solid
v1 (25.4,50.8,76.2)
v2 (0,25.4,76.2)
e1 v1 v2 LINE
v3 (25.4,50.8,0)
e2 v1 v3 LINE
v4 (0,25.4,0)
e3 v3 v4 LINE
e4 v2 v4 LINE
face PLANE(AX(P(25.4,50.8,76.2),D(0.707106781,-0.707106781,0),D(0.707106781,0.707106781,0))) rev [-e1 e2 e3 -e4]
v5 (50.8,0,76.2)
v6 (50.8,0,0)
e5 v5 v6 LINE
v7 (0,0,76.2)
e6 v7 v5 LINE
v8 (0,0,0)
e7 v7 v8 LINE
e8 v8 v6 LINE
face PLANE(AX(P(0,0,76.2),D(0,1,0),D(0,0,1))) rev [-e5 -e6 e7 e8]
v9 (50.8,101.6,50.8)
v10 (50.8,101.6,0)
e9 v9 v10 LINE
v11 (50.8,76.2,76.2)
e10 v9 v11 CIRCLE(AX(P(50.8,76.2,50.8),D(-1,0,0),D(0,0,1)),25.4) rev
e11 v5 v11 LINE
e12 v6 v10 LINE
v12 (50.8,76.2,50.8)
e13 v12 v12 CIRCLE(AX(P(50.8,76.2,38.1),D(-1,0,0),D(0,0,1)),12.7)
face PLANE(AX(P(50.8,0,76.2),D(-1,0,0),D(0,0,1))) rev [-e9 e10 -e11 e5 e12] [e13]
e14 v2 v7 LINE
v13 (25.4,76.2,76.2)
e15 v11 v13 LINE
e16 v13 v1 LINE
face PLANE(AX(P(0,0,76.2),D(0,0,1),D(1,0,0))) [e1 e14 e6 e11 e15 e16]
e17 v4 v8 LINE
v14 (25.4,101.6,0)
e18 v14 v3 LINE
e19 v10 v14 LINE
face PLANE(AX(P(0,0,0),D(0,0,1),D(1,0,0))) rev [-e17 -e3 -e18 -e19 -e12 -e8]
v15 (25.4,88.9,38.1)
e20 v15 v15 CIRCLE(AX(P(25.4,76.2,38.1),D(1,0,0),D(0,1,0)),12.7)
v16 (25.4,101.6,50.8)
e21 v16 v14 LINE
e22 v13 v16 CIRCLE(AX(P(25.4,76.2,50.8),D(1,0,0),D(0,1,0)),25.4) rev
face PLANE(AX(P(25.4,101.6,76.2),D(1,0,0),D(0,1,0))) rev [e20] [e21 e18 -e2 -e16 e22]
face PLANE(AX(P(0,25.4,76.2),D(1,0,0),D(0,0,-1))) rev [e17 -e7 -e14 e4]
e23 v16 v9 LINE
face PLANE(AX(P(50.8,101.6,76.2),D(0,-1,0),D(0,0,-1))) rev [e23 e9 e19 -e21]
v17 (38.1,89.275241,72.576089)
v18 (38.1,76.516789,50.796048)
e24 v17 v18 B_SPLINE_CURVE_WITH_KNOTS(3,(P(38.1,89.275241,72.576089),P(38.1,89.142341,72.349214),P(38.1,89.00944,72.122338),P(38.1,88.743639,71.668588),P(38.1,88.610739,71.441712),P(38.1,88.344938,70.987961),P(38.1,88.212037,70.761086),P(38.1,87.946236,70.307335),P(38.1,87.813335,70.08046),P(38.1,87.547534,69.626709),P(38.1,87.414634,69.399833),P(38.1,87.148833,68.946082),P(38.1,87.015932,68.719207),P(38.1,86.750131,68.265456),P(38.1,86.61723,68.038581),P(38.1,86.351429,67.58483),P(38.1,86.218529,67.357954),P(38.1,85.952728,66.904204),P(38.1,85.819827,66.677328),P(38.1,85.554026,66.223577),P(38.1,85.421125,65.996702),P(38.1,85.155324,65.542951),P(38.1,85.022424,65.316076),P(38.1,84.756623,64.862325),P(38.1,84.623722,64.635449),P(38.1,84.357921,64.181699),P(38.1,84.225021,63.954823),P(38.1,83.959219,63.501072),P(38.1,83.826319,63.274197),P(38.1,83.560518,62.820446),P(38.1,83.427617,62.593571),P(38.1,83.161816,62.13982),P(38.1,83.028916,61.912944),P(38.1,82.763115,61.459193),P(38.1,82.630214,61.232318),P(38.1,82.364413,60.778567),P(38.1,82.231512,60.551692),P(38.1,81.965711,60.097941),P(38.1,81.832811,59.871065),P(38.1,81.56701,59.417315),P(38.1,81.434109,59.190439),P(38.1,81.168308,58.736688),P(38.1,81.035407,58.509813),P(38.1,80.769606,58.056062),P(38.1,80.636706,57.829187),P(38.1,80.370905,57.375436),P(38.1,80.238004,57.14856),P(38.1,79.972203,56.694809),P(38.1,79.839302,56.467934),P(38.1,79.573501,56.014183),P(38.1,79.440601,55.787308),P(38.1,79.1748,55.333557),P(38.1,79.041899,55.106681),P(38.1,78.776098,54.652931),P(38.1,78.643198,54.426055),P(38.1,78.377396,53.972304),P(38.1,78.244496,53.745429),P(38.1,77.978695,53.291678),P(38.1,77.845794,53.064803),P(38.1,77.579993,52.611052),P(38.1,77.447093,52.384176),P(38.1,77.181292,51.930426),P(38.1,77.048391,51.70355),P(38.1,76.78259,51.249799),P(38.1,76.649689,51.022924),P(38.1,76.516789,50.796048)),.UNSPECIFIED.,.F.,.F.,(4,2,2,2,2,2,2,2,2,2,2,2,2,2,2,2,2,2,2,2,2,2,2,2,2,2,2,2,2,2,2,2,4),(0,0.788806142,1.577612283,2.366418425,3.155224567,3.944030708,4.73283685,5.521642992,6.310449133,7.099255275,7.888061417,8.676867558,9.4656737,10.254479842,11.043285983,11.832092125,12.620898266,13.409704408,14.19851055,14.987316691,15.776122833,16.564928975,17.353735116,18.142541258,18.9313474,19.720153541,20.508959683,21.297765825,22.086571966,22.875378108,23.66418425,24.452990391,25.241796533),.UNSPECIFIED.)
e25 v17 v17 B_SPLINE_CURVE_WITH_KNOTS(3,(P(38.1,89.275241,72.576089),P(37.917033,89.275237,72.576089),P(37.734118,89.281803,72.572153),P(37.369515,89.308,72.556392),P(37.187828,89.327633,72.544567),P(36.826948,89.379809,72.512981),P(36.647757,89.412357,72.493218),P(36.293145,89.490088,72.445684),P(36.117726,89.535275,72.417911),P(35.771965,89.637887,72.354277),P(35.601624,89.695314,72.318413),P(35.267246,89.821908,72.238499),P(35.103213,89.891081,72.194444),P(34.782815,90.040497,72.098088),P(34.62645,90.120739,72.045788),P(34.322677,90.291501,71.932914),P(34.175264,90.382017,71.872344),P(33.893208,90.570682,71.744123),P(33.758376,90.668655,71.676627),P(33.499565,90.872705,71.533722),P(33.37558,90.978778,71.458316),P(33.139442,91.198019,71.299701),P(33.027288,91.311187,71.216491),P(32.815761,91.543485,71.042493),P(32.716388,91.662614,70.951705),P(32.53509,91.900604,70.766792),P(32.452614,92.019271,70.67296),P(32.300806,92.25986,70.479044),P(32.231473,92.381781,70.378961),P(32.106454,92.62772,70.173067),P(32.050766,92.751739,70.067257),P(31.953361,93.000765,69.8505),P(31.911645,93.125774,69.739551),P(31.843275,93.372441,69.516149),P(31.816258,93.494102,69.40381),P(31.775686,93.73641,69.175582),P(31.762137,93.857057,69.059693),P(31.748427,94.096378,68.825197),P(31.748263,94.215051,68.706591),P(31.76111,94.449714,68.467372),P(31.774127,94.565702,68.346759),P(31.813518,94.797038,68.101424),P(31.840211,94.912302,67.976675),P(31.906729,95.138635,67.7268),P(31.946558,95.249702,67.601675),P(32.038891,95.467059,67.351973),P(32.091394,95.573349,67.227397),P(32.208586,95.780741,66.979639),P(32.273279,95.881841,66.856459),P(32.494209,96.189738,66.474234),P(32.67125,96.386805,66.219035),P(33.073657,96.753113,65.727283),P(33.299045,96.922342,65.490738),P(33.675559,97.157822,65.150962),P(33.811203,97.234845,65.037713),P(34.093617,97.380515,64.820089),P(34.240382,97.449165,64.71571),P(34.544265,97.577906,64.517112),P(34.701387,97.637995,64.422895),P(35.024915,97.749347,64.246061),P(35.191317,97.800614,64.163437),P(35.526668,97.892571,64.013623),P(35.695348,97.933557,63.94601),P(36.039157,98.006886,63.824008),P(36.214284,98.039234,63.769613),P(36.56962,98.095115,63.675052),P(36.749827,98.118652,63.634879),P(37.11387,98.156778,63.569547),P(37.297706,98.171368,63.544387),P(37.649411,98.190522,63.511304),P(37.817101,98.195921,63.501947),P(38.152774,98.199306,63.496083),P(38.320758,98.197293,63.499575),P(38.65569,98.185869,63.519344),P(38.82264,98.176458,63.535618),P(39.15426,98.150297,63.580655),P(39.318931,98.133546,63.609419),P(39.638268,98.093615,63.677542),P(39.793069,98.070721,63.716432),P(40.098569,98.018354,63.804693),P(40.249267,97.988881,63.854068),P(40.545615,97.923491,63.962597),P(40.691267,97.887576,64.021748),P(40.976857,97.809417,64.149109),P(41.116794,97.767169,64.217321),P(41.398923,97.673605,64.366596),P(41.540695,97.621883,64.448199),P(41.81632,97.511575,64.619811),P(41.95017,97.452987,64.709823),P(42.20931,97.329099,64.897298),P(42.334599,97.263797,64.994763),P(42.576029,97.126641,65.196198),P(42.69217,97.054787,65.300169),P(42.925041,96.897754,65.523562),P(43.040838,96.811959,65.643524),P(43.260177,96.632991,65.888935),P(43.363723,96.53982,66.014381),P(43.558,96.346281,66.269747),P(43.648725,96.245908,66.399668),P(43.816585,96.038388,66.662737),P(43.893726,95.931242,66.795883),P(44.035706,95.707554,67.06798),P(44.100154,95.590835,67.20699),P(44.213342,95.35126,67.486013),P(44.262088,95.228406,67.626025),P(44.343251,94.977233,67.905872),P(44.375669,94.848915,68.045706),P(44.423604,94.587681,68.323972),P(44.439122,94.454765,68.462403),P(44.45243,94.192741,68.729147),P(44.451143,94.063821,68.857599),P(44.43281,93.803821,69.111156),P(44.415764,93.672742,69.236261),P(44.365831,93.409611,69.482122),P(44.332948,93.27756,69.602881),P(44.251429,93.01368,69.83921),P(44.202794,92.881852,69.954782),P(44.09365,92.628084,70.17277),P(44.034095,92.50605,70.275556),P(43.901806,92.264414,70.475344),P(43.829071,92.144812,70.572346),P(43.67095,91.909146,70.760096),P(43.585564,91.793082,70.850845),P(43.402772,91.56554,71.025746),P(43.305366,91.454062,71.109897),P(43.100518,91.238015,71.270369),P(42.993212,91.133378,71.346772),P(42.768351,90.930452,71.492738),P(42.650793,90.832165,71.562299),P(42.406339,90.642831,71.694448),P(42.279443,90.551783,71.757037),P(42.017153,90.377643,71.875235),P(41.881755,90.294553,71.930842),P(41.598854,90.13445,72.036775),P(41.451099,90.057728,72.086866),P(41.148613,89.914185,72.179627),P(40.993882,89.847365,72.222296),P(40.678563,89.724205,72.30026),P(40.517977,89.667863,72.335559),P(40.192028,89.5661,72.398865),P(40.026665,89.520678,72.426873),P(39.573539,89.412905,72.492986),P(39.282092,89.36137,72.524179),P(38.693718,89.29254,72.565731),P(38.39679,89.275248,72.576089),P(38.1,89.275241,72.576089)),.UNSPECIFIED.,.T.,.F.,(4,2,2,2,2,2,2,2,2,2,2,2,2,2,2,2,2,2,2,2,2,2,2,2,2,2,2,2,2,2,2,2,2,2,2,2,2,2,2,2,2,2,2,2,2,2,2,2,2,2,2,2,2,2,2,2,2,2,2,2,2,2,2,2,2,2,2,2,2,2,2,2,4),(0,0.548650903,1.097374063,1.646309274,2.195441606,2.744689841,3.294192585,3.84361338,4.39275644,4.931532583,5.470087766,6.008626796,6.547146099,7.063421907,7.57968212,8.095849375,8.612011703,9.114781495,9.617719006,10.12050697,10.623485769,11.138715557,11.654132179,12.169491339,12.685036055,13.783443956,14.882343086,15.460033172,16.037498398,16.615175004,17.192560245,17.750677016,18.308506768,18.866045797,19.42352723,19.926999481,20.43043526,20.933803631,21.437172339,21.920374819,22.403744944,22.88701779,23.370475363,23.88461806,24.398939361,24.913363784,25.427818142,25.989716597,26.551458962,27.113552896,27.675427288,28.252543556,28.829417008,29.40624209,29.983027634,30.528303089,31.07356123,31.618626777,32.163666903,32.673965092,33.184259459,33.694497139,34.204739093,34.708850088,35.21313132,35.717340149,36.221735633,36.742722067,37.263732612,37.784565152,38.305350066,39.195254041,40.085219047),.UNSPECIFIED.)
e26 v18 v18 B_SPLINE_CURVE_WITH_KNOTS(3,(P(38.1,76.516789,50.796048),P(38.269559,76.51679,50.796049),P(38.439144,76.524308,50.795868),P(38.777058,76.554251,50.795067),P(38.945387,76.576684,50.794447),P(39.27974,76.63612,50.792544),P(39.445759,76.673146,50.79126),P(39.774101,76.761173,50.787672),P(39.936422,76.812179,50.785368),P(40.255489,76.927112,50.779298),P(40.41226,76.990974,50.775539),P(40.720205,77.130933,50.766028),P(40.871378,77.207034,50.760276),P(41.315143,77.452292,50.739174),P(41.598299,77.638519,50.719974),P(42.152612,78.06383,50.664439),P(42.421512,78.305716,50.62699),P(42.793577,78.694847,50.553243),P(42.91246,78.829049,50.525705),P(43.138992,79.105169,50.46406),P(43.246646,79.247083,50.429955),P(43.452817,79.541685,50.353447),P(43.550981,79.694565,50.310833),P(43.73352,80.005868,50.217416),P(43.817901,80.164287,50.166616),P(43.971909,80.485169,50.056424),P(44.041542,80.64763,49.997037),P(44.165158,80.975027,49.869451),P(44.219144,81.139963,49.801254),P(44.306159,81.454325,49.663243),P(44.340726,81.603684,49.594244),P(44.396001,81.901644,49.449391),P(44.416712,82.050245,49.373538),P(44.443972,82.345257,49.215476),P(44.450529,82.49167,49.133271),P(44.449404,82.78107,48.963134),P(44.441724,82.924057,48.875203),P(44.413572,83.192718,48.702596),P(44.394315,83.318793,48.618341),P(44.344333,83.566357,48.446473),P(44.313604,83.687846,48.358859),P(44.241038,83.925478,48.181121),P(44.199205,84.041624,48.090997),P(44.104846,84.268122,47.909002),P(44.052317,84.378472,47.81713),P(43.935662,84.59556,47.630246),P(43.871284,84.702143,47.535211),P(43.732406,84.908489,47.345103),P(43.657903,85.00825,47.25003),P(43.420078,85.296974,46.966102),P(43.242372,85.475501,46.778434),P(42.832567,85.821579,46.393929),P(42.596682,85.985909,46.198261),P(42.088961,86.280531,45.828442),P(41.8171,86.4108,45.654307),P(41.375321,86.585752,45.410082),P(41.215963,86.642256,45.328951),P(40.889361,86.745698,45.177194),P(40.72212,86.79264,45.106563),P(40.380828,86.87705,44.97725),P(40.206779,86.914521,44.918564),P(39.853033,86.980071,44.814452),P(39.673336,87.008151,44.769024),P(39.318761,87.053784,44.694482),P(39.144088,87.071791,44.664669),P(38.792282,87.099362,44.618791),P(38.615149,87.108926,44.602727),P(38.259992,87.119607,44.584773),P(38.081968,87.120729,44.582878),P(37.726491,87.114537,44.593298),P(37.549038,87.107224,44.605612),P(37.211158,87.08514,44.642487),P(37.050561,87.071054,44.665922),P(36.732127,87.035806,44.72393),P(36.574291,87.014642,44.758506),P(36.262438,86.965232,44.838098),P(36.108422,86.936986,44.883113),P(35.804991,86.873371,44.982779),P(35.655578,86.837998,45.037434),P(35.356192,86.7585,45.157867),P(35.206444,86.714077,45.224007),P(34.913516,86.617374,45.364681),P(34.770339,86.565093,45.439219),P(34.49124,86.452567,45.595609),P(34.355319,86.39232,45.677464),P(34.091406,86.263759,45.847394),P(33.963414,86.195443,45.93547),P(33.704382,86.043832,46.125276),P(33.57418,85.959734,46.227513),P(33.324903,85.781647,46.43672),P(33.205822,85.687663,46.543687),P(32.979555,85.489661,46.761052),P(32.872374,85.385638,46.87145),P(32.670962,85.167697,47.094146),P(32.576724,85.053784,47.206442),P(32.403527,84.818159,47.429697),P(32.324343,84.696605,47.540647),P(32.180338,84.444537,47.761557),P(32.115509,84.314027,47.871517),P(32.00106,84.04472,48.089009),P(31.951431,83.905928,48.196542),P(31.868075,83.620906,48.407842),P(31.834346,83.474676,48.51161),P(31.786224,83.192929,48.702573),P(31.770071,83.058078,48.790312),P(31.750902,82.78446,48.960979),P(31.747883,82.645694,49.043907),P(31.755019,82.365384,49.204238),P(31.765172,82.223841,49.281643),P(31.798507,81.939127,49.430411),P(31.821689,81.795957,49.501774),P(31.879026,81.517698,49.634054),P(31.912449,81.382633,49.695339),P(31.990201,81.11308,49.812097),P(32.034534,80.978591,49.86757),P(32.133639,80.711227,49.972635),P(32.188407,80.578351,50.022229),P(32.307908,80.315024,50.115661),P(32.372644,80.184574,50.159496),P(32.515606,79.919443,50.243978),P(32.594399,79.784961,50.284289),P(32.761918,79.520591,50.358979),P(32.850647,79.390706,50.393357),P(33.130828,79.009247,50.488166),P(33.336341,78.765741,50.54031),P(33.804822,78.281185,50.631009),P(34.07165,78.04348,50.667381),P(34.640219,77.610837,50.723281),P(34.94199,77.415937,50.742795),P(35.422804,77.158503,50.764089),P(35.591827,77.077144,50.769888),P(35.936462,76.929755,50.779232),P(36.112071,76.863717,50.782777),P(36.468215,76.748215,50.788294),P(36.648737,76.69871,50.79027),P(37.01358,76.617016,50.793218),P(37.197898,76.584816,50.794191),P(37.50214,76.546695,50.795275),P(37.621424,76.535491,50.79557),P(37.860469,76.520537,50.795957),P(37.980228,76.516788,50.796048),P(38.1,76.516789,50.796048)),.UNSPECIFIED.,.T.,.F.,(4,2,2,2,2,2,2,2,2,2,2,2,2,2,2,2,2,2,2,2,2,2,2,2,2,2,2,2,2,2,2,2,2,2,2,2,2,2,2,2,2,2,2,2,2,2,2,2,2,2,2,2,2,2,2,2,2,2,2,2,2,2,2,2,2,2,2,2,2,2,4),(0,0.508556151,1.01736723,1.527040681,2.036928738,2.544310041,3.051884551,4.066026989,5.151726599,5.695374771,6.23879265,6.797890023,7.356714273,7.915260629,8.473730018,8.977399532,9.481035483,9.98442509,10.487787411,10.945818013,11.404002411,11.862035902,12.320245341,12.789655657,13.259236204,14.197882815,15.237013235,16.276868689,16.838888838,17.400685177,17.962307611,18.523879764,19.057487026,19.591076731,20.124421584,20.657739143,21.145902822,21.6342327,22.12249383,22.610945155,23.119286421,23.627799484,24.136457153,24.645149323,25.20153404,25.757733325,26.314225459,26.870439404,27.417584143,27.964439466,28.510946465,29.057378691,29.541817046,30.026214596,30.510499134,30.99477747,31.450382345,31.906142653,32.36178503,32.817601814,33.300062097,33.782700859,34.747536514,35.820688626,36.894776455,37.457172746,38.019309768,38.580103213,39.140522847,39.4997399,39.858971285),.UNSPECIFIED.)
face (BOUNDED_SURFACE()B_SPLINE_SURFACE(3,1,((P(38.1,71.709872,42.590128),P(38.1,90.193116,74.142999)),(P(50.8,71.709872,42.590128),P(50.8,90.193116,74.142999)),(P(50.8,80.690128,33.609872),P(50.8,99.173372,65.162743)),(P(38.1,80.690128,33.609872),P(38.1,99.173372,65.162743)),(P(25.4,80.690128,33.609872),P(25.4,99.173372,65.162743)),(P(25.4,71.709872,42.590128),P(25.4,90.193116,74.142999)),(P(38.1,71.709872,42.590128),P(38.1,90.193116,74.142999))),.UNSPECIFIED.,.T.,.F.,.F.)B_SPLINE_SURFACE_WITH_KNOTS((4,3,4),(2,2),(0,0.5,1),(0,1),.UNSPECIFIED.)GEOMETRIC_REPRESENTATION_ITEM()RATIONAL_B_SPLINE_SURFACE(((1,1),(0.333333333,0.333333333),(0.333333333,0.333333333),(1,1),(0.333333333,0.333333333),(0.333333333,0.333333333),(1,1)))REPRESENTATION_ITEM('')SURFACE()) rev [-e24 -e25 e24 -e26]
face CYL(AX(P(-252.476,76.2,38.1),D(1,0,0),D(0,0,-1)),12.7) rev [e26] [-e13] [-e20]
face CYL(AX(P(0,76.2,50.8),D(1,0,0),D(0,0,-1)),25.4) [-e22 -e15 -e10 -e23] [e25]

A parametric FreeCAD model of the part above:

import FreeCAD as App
import Part
import Sketcher
from FreeCAD import Vector
Q = App.Units.Quantity


def edges_at(feature, points):
    """Names of the edges that pass closest to the given points."""
    edges = feature.Shape.Edges
    near = lambda p: min(range(len(edges)), key=lambda i: edges[i].distToShape(Part.Vertex(*p))[0])
    return sorted({f"Edge{near(p) + 1}" for p in points})


def add_polygon(sketch, points):
    """Adds a closed chain of lines whose ends are joined by coincident constraints."""
    first, n = sketch.GeometryCount, len(points)
    for a, b in zip(points, points[1:] + points[:1]):
        sketch.addGeometry(Part.LineSegment(App.Vector(*a, 0), App.Vector(*b, 0)), False)
    for i in range(n):
        sketch.addConstraint(Sketcher.Constraint("Coincident", first + i, 2, first + (i + 1) % n, 1))

doc = App.newDocument("Part")
body = doc.addObject("PartDesign::Body", "Body")

# Sketch on XY plane
sketch1 = doc.addObject("Sketcher::SketchObject", "Sketch")
body.addObject(sketch1)
sketch1.AttachmentSupport = (doc.XY_Plane, [""])
sketch1.MapMode = "FlatFace"
add_polygon(sketch1, [(0, 0), (51, 0), (51, 102), (25, 102), (25, 51), (0, 25)])  # lines 0-5
sketch1.addConstraint([
    Sketcher.Constraint("Horizontal", 0),
    Sketcher.Constraint("Vertical", 1),
    Sketcher.Constraint("Horizontal", 2),
    Sketcher.Constraint("Vertical", 3),
    Sketcher.Constraint("Vertical", 5),
    Sketcher.Constraint("Coincident", 5, 2, -1, 1),
    Sketcher.Constraint("Equal", 0, 3),
    Sketcher.Constraint("Equal", 2, 5),
    Sketcher.Constraint("DistanceX", 0, 1, 0, 2, Q("2 in")),
    Sketcher.Constraint("DistanceX", 2, 2, 2, 1, Q("1 in")),
    Sketcher.Constraint("DistanceY", 1, 1, 1, 2, Q("4 in")),
])
pad1 = doc.addObject("PartDesign::Pad", "Pad")
body.addObject(pad1)
pad1.Profile = sketch1
pad1.Length = Q("3 in")
doc.recompute()

fillet = doc.addObject("PartDesign::Fillet", "Fillet")
body.addObject(fillet)
fillet.Base = (pad1, edges_at(pad1, [(38.1, 101.6, 76.2)]))
fillet.Radius = Q("1 in")

# Sketch on YZ plane
sketch2 = doc.addObject("Sketcher::SketchObject", "Sketch001")
body.addObject(sketch2)
sketch2.AttachmentSupport = (doc.YZ_Plane, [""])
sketch2.MapMode = "FlatFace"
sketch2.addGeometry(Part.Circle(Vector(76, 38, 0), Vector(0, 0, 1), 13), False)
sketch2.addConstraint([
    Sketcher.Constraint("Diameter", 0, Q("1 in")),
    Sketcher.Constraint("DistanceX", -1, 1, 0, 3, Q("3 in")),
    Sketcher.Constraint("DistanceY", -1, 1, 0, 3, Q("1.5 in")),
])
pocket1 = doc.addObject("PartDesign::Pocket", "Pocket")
body.addObject(pocket1)
pocket1.Profile = sketch2
pocket1.Length = Q("19.88 in")
pocket1.Midplane = True

# Sketch on an angled plane
sketch3 = doc.addObject("Sketcher::SketchObject", "Sketch002")
body.addObject(sketch3)
sketch3.Placement = App.Placement(Vector(38.1, 94.160512, 68.760512), App.Rotation(Vector(1, 0, 0), Vector(0, 0.707106781, -0.707106781), Vector(0, 0.707106781, 0.707106781), "ZXY"))
sketch3.addGeometry(Part.Circle(Vector(0, 0, 0), Vector(0, 0, 1), 6), False)
sketch3.addConstraint([
    Sketcher.Constraint("Coincident", 0, 3, -1, 1),
    Sketcher.Constraint("Diameter", 0, Q("0.5 in")),
])

# Sketch on an angled plane
sketch4 = doc.addObject("Sketcher::SketchObject", "Sketch003")
body.addObject(sketch4)
sketch4.Placement = App.Placement(Vector(0, 40.115927, -23.499366), App.Rotation(Vector(0, -0.505449465, -0.862856209), Vector(0.999999999, 0, 0), Vector(0, -0.862856209, 0.505449465), "ZXY"))
sketch4.addGeometry(Part.LineSegment(Vector(-71, 38, 0), Vector(-107, 38, 0)), False)
sketch4.addConstraint([
    Sketcher.Constraint("Horizontal", 0),
    Sketcher.Constraint("DistanceY", -1, 1, 0, 1, Q("1.5 in")),
    Sketcher.Constraint("DistanceX", 0, 2, 0, 1, 35.533745),
    Sketcher.Constraint("DistanceX", 0, 1, -1, 1, 71.390071),
])
doc.recompute()

subtractivepipe = doc.addObject("PartDesign::SubtractivePipe", "SubtractivePipe")
body.addObject(subtractivepipe)
subtractivepipe.Profile = sketch3
subtractivepipe.Spine = (sketch4, ["Edge1"])

doc.recompute()
